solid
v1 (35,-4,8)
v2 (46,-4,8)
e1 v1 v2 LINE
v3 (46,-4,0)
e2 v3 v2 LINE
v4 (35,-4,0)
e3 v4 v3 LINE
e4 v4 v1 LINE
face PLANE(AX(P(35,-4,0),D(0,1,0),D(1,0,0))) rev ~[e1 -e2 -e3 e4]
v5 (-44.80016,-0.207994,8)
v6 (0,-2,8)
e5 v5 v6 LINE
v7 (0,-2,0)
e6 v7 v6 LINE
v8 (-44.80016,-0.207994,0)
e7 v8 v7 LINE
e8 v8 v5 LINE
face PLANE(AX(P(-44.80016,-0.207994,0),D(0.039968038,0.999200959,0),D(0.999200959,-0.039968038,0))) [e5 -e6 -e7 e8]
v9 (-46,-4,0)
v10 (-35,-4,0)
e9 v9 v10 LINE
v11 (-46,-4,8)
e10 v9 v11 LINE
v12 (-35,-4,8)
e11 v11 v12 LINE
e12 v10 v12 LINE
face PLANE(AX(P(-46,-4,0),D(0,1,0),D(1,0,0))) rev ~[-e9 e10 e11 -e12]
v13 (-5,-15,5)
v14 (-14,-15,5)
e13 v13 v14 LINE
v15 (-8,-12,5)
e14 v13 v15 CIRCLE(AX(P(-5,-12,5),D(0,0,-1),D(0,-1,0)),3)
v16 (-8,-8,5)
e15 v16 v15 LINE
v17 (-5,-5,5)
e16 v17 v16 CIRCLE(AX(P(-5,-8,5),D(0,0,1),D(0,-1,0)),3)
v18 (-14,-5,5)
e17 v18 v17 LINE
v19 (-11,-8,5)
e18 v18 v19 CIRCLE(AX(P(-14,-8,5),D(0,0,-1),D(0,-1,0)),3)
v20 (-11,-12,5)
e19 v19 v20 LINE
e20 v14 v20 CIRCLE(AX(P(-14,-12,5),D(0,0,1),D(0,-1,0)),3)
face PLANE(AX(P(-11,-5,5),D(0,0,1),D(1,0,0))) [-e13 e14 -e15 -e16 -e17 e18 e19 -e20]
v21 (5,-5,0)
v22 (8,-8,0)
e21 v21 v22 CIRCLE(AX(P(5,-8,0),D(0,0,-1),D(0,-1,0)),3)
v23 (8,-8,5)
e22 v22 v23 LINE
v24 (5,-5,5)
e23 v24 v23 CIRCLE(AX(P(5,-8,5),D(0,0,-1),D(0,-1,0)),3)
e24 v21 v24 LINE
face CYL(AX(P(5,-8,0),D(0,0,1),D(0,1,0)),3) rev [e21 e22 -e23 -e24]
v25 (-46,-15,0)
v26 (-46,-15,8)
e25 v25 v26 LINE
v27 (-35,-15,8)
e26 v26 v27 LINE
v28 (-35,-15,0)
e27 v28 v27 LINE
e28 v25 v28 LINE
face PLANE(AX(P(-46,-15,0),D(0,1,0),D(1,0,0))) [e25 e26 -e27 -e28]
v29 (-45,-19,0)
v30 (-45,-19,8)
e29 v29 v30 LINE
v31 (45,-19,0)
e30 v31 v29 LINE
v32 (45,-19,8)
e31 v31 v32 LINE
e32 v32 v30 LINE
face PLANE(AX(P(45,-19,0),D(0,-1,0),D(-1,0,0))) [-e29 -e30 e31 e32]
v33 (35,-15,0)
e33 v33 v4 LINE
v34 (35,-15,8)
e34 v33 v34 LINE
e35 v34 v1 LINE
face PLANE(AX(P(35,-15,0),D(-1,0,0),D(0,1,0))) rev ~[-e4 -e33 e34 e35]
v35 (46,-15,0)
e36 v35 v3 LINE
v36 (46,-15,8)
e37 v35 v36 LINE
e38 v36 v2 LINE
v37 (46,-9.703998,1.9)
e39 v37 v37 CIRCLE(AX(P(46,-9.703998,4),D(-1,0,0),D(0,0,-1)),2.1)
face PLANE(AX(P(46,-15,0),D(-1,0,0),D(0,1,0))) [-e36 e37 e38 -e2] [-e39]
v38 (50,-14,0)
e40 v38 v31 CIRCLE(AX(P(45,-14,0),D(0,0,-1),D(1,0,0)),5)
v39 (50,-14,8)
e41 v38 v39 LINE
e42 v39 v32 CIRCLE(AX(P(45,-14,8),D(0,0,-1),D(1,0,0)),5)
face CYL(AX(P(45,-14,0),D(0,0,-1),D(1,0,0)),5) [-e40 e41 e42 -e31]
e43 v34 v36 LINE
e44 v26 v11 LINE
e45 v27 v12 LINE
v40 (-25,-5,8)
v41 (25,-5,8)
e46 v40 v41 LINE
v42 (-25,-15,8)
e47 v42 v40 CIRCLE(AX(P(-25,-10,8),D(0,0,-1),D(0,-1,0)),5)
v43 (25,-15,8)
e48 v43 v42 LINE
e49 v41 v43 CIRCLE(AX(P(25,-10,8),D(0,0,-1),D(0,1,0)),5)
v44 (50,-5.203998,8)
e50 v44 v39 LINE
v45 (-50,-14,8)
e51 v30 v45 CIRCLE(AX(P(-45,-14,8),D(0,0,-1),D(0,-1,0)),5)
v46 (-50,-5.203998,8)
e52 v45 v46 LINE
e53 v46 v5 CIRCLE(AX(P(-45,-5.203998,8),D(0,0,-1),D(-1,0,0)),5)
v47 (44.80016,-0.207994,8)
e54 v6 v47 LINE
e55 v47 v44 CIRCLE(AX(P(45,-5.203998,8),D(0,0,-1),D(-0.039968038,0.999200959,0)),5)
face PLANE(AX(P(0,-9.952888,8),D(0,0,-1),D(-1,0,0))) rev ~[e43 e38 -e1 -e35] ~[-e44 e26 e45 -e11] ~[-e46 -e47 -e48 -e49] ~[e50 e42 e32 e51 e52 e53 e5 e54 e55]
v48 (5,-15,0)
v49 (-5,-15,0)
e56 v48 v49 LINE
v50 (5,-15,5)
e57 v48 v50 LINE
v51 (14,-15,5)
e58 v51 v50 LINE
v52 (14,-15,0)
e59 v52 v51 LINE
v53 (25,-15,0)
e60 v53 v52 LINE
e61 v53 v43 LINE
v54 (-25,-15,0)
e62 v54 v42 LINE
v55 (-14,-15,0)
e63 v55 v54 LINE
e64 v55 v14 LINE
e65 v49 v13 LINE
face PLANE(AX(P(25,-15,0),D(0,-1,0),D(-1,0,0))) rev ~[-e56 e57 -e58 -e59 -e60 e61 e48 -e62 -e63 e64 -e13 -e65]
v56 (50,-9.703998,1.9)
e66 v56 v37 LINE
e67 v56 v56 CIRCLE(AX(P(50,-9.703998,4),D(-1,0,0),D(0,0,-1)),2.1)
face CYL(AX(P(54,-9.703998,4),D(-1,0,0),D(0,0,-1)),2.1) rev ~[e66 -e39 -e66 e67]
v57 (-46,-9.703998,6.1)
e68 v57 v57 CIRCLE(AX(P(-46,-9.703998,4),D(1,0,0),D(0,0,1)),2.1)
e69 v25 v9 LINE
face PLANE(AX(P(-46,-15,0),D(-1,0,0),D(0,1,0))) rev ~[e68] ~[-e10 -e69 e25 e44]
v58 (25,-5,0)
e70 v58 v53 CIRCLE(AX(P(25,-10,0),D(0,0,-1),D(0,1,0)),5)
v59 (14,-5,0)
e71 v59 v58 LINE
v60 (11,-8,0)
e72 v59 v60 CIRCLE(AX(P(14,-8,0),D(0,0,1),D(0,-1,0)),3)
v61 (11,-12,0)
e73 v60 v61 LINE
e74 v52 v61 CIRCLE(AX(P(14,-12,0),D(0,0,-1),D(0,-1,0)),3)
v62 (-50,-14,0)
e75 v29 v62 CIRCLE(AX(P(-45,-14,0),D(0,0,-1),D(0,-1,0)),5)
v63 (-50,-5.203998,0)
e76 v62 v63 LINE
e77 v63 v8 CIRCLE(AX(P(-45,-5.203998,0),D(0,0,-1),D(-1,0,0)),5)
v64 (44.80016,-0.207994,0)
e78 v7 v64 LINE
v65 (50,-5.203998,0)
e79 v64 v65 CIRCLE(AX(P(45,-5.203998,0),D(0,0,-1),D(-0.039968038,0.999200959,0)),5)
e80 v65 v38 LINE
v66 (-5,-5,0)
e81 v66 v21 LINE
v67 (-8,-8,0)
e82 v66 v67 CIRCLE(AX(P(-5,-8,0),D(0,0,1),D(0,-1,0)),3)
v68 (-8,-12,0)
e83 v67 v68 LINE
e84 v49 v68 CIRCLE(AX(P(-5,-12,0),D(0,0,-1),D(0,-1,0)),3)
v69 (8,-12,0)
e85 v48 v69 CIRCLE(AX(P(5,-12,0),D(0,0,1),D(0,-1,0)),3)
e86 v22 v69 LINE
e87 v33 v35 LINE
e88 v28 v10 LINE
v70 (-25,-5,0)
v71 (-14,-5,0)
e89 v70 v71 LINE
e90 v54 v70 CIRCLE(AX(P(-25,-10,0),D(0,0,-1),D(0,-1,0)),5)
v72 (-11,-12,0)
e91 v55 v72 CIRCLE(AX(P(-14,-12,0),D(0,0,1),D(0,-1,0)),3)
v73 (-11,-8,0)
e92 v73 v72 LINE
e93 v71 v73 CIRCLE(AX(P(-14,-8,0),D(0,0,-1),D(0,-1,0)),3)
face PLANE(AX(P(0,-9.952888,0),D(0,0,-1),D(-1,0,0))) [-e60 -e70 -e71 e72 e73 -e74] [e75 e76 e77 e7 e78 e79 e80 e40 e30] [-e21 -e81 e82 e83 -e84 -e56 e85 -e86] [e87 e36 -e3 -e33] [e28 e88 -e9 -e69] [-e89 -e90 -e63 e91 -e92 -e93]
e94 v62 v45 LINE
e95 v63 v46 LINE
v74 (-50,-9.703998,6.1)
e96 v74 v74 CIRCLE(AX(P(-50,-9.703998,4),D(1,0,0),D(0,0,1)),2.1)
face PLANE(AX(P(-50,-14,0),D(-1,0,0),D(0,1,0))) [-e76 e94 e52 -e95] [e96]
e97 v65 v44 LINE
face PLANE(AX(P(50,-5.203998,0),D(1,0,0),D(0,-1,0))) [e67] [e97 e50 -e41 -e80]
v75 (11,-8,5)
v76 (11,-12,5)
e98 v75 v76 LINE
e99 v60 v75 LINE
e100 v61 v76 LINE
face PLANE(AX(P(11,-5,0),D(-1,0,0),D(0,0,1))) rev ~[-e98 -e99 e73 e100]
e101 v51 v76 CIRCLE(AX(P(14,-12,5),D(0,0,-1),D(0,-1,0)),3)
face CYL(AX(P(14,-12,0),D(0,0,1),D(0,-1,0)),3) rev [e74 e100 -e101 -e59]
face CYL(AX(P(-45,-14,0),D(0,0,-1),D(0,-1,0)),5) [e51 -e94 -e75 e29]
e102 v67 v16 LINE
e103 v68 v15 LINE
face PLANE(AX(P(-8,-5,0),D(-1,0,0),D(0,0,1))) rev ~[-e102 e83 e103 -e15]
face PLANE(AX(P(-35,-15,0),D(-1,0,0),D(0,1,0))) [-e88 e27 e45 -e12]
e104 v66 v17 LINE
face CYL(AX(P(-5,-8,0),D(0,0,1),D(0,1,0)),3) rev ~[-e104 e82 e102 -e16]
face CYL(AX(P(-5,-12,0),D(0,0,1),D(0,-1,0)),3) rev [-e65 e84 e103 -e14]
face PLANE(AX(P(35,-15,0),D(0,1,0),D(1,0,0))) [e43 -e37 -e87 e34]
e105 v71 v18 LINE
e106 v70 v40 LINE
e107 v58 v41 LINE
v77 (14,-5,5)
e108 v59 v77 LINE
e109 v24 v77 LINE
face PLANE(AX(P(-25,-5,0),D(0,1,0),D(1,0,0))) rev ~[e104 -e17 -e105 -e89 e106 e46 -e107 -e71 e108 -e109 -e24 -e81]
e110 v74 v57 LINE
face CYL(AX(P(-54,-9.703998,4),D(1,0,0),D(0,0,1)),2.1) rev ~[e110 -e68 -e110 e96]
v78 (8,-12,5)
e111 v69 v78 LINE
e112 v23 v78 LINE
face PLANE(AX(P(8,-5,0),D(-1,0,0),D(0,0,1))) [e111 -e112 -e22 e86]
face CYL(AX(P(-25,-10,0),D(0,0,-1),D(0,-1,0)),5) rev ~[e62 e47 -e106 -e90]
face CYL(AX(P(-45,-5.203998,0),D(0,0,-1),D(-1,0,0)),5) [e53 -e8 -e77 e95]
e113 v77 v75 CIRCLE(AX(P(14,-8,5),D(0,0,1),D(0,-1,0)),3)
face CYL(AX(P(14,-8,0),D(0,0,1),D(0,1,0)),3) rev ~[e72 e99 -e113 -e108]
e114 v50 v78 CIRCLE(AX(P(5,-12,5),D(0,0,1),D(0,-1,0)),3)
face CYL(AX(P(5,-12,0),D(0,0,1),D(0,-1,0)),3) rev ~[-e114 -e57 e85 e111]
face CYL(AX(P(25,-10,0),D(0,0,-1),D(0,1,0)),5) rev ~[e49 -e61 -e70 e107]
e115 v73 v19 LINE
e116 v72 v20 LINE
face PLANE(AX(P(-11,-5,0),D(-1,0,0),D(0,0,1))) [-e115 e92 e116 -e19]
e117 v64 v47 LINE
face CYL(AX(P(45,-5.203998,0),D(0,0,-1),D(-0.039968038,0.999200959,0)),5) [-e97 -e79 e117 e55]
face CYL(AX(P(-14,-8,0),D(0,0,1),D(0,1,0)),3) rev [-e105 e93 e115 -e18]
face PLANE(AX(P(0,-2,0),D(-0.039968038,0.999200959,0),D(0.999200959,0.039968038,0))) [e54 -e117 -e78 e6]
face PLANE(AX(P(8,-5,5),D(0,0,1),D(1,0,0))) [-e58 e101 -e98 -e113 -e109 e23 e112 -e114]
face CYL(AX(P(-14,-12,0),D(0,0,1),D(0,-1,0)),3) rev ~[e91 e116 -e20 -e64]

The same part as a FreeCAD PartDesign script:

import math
import FreeCAD as App
import Part
import Sketcher


def edges_at(feature, points):
    """Names of the edges that pass closest to the given points."""
    edges = feature.Shape.Edges
    near = lambda p: min(range(len(edges)), key=lambda i: edges[i].distToShape(Part.Vertex(*p))[0])
    return sorted({f"Edge{near(p) + 1}" for p in points})


def add_polygon(sketch, points):
    """Adds a closed chain of lines whose ends are joined by coincident constraints."""
    first, n = sketch.GeometryCount, len(points)
    for a, b in zip(points, points[1:] + points[:1]):
        sketch.addGeometry(Part.LineSegment(App.Vector(*a, 0), App.Vector(*b, 0)), False)
    for i in range(n):
        sketch.addConstraint(Sketcher.Constraint("Coincident", first + i, 2, first + (i + 1) % n, 1))

doc = App.newDocument("Part")
body = doc.addObject("PartDesign::Body", "Body")

# Sketch on XY plane
sketch1 = body.newObject("Sketcher::SketchObject", "Sketch")
sketch1.AttachmentSupport = (doc.getObject("XY_Plane"), [""])
sketch1.MapMode = "FlatFace"
sketch1.addGeometry(Part.LineSegment(App.Vector(50, -14, 0), App.Vector(50, -5, 0)), False)  # 0
sketch1.addGeometry(Part.ArcOfCircle(Part.Circle(App.Vector(45, -5, 0), App.Vector(0, 0, 1), 5), math.radians(0), math.radians(92)), False)  # 1
sketch1.addGeometry(Part.LineSegment(App.Vector(45, 0, 0), App.Vector(0, -2, 0)), False)  # 2
sketch1.addGeometry(Part.LineSegment(App.Vector(0, -2, 0), App.Vector(-45, 0, 0)), False)  # 3
sketch1.addGeometry(Part.ArcOfCircle(Part.Circle(App.Vector(-45, -5, 0), App.Vector(0, 0, 1), 5), math.radians(88), math.radians(180)), False)  # 4
sketch1.addGeometry(Part.LineSegment(App.Vector(-50, -5, 0), App.Vector(-50, -14, 0)), False)  # 5
sketch1.addGeometry(Part.ArcOfCircle(Part.Circle(App.Vector(-45, -14, 0), App.Vector(0, 0, 1), 5), math.radians(180), math.radians(270)), False)  # 6
sketch1.addGeometry(Part.LineSegment(App.Vector(-45, -19, 0), App.Vector(45, -19, 0)), False)  # 7
sketch1.addGeometry(Part.ArcOfCircle(Part.Circle(App.Vector(45, -14, 0), App.Vector(0, 0, 1), 5), math.radians(-90), math.radians(0)), False)  # 8
sketch1.addGeometry(Part.LineSegment(App.Vector(-25, -5, 0), App.Vector(25, -5, 0)), False)  # 9
sketch1.addGeometry(Part.ArcOfCircle(Part.Circle(App.Vector(25, -10, 0), App.Vector(0, 0, 1), 5), math.radians(-90), math.radians(90)), False)  # 10
sketch1.addGeometry(Part.LineSegment(App.Vector(25, -15, 0), App.Vector(-25, -15, 0)), False)  # 11
sketch1.addGeometry(Part.ArcOfCircle(Part.Circle(App.Vector(-25, -10, 0), App.Vector(0, 0, 1), 5), math.radians(90), math.radians(270)), False)  # 12
add_polygon(sketch1, [(35, -15), (35, -4), (46, -4), (46, -15)])  # lines 13-16
add_polygon(sketch1, [(-46, -15), (-46, -4), (-35, -4), (-35, -15)])  # lines 17-20
sketch1.addConstraint([
    Sketcher.Constraint("Tangent", 0, 2, 1, 1),
    Sketcher.Constraint("Tangent", 1, 2, 2, 1),
    Sketcher.Constraint("Coincident", 2, 2, 3, 1),
    Sketcher.Constraint("Tangent", 3, 2, 4, 1),
    Sketcher.Constraint("Tangent", 4, 2, 5, 1),
    Sketcher.Constraint("Tangent", 5, 2, 6, 1),
    Sketcher.Constraint("Tangent", 6, 2, 7, 1),
    Sketcher.Constraint("Tangent", 7, 2, 8, 1),
    Sketcher.Constraint("Tangent", 8, 2, 0, 1),
    Sketcher.Constraint("Tangent", 9, 2, 10, 2),
    Sketcher.Constraint("Tangent", 10, 1, 11, 1),
    Sketcher.Constraint("Tangent", 11, 2, 12, 2),
    Sketcher.Constraint("Tangent", 12, 1, 9, 1),
    Sketcher.Constraint("Vertical", 0),
    Sketcher.Constraint("Vertical", 5),
    Sketcher.Constraint("Horizontal", 7),
    Sketcher.Constraint("Horizontal", 9),
    Sketcher.Constraint("Horizontal", 11),
    Sketcher.Constraint("Vertical", 13),
    Sketcher.Constraint("Horizontal", 14),
    Sketcher.Constraint("Vertical", 15),
    Sketcher.Constraint("Horizontal", 16),
    Sketcher.Constraint("Vertical", 17),
    Sketcher.Constraint("Horizontal", 18),
    Sketcher.Constraint("Vertical", 19),
    Sketcher.Constraint("Horizontal", 20),
    Sketcher.Constraint("Equal", 1, 4),
    Sketcher.Constraint("Equal", 4, 6),
    Sketcher.Constraint("Equal", 6, 8),
    Sketcher.Constraint("Equal", 8, 10),
    Sketcher.Constraint("Symmetric", 1, 3, 4, 3, -2),
    Sketcher.Constraint("Symmetric", 14, 2, 17, 2, -2),
    Sketcher.Constraint("Symmetric", 16, 2, 19, 2, -2),
    Sketcher.Constraint("PointOnObject", 2, 2, -2),
    Sketcher.Constraint("Horizontal", 11, 2, 15, 2),
    Sketcher.Constraint("Equal", 20, 13),
    Sketcher.Constraint("Radius", 1, 5.0),
    Sketcher.Constraint("DistanceX", 7, 1, 7, 2, 90.0),
    Sketcher.Constraint("DistanceX", 9, 1, 9, 2, 50.0),
    Sketcher.Constraint("DistanceX", 14, 1, 14, 2, 11.0),
    Sketcher.Constraint("DistanceY", 6, 3, -1, 1, 14.0),
    Sketcher.Constraint("DistanceX", -1, 1, 10, 3, 25.0),
    Sketcher.Constraint("DistanceY", 10, 3, -1, 1, 10.0),
    Sketcher.Constraint("DistanceY", 2, 2, -1, 1, 2.0),
    Sketcher.Constraint("DistanceX", -1, 1, 13, 2, 35.0),
    Sketcher.Constraint("DistanceY", 0, 1, 0, 2, 8.796002),
])
pad1 = body.newObject("PartDesign::Pad", "Pad")
pad1.Profile = sketch1
pad1.Length = 8

# Sketch on XZ plane
sketch2 = body.newObject("Sketcher::SketchObject", "Sketch001")
sketch2.AttachmentSupport = (doc.getObject("XZ_Plane"), [""])
sketch2.MapMode = "FlatFace"
sketch2.AttachmentOffset = App.Placement(App.Vector(0, 0, 5), App.Rotation())
add_polygon(sketch2, [(-11, 5), (-11, 0), (-8, 0), (-8, 5)])  # lines 0-3
sketch2.addConstraint([
    Sketcher.Constraint("Vertical", 0),
    Sketcher.Constraint("Horizontal", 1),
    Sketcher.Constraint("Vertical", 2),
    Sketcher.Constraint("Horizontal", 3),
    Sketcher.Constraint("PointOnObject", 0, 2, -1),
    Sketcher.Constraint("DistanceX", 1, 1, 1, 2, 3.0),
    Sketcher.Constraint("DistanceY", 0, 2, 0, 1, 5.0),
    Sketcher.Constraint("DistanceX", 0, 2, -1, 1, 11.0),
])
pad2 = body.newObject("PartDesign::Pad", "Pad001")
pad2.Profile = sketch2
pad2.Type = "UpToFirst"

# Sketch on XZ plane
sketch3 = body.newObject("Sketcher::SketchObject", "Sketch002")
sketch3.AttachmentSupport = (doc.getObject("XZ_Plane"), [""])
sketch3.MapMode = "FlatFace"
sketch3.AttachmentOffset = App.Placement(App.Vector(0, 0, 5), App.Rotation())
add_polygon(sketch3, [(8, 5), (8, 0), (11, 0), (11, 5)])  # lines 0-3
sketch3.addConstraint([
    Sketcher.Constraint("Vertical", 0),
    Sketcher.Constraint("Horizontal", 1),
    Sketcher.Constraint("Vertical", 2),
    Sketcher.Constraint("Horizontal", 3),
    Sketcher.Constraint("PointOnObject", 0, 2, -1),
    Sketcher.Constraint("DistanceX", 1, 1, 1, 2, 3.0),
    Sketcher.Constraint("DistanceY", 0, 2, 0, 1, 5.0),
    Sketcher.Constraint("DistanceX", -1, 1, 0, 2, 8.0),
])
pad3 = body.newObject("PartDesign::Pad", "Pad002")
pad3.Profile = sketch3
pad3.Type = "UpToFirst"
doc.recompute()

fillet = body.newObject("PartDesign::Fillet", "Fillet")
fillet.Base = (pad3, edges_at(pad3, [
    (-8, -15, 2.5),
    (-8, -5, 2.5),
    (-11, -15, 2.5),
    (-11, -5, 2.5),
    (11, -15, 2.5),
    (11, -5, 2.5),
    (8, -15, 2.5),
    (8, -5, 2.5),
]))
fillet.Radius = 3

# Sketch on YZ plane
sketch4 = body.newObject("Sketcher::SketchObject", "Sketch003")
sketch4.AttachmentSupport = (doc.getObject("YZ_Plane"), [""])
sketch4.MapMode = "FlatFace"
sketch4.AttachmentOffset = App.Placement(App.Vector(0, 0, -50), App.Rotation())
sketch4.addGeometry(Part.Circle(App.Vector(-9.7, 4, 0), App.Vector(0, 0, 1), 2.1), False)
sketch4.addConstraint([
    Sketcher.Constraint("Diameter", 0, 4.2),
    Sketcher.Constraint("DistanceY", -1, 1, 0, 3, 4.0),
    Sketcher.Constraint("DistanceX", 0, 3, -1, 1, 9.703998),
])
doc.recompute()
hole = body.newObject("PartDesign::Hole", "Hole")
hole.Profile = sketch4
hole.ThreadType = "None"
hole.Diameter = 4.2
hole.DepthType = "Dimension"
hole.Depth = 4
hole.DrillPoint = "Flat"
hole.Reversed = True

# Sketch on YZ plane
sketch5 = body.newObject("Sketcher::SketchObject", "Sketch004")
sketch5.AttachmentSupport = (doc.getObject("YZ_Plane"), [""])
sketch5.MapMode = "FlatFace"
sketch5.AttachmentOffset = App.Placement(App.Vector(0, 0, 50), App.Rotation())
sketch5.addGeometry(Part.Circle(App.Vector(-9.7, 4, 0), App.Vector(0, 0, 1), 2.1), False)
sketch5.addConstraint([
    Sketcher.Constraint("Diameter", 0, 4.2),
    Sketcher.Constraint("DistanceY", -1, 1, 0, 3, 4.0),
    Sketcher.Constraint("DistanceX", 0, 3, -1, 1, 9.703998),
])
doc.recompute()
hole2 = body.newObject("PartDesign::Hole", "Hole001")
hole2.Profile = sketch5
hole2.ThreadType = "None"
hole2.Diameter = 4.2
hole2.DepthType = "Dimension"
hole2.Depth = 4
hole2.DrillPoint = "Flat"

doc.recompute()
